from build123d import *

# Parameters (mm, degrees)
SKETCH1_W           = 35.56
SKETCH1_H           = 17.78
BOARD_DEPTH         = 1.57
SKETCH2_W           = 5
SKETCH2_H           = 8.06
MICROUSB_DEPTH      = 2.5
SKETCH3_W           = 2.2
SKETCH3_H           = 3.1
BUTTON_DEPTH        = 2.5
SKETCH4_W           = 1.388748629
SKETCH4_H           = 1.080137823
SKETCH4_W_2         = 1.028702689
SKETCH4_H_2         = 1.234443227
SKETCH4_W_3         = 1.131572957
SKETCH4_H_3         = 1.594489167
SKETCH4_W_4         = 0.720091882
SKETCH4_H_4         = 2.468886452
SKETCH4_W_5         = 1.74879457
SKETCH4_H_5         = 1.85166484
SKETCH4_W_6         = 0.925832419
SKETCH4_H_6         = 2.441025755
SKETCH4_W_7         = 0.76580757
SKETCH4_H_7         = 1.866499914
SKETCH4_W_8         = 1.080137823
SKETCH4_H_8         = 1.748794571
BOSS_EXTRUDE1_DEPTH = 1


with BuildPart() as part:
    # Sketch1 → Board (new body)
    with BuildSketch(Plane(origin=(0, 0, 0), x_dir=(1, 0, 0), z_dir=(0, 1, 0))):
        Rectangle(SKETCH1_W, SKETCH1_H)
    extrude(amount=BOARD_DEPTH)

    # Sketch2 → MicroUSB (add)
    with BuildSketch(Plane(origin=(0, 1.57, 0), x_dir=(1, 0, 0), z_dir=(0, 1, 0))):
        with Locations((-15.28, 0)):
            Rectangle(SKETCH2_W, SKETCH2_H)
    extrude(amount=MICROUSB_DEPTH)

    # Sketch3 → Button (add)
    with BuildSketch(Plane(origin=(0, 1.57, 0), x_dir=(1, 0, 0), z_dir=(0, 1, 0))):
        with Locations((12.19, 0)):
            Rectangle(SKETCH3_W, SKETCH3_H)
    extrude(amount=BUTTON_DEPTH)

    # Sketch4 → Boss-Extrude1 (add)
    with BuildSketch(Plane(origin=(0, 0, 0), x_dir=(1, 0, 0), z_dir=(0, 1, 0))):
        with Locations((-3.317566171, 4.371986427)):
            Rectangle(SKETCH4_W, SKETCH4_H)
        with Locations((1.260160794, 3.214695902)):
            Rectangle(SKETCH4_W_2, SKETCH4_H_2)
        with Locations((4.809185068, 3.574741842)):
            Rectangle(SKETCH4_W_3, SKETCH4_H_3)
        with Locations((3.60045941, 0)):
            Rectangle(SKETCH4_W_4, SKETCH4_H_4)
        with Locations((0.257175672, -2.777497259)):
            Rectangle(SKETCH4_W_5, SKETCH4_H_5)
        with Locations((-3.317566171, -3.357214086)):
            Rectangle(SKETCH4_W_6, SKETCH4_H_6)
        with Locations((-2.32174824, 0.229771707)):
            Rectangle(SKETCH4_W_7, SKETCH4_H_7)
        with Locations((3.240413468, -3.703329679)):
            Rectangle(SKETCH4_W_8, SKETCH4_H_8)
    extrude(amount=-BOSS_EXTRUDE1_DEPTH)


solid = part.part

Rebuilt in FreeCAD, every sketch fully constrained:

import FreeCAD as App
import Part
import Sketcher

V = App.Vector
Q = App.Units.Quantity


def add_polygon(sketch, points):
    """Adds a closed chain of lines whose ends are joined by coincident constraints."""
    first, n = sketch.GeometryCount, len(points)
    for a, b in zip(points, points[1:] + points[:1]):
        sketch.addGeometry(Part.LineSegment(App.Vector(*a, 0), App.Vector(*b, 0)), False)
    for i in range(n):
        sketch.addConstraint(Sketcher.Constraint("Coincident", first + i, 2, first + (i + 1) % n, 1))

doc = App.newDocument("Part")
body = doc.addObject("PartDesign::Body", "Body")

sketch1 = body.newObject("Sketcher::SketchObject", "Sketch")
sketch1.AttachmentSupport = (doc.getObject("XZ_Plane"), [""])
sketch1.MapMode = "FlatFace"
add_polygon(sketch1, [(-17.78, -8.89), (-17.78, 8.89), (17.78, 8.89), (17.78, -8.89)])
sketch1.addConstraint(Sketcher.Constraint("Vertical", 0))
sketch1.addConstraint(Sketcher.Constraint("Horizontal", 1))
sketch1.addConstraint(Sketcher.Constraint("Vertical", 2))
sketch1.addConstraint(Sketcher.Constraint("Horizontal", 3))
sketch1.addConstraint(Sketcher.Constraint("Symmetric", 0, 2, 2, 2, -1, 1))
sketch1.addConstraint(Sketcher.Constraint("DistanceX", 1, 1, 1, 2, Q("35.56 mm")))
sketch1.addConstraint(Sketcher.Constraint("DistanceY", 0, 1, 0, 2, Q("17.78 mm")))
pad1 = body.newObject("PartDesign::Pad", "Pad")
pad1.Profile = sketch1
pad1.Length = 1.57
pad1.Reversed = True

sketch2 = body.newObject("Sketcher::SketchObject", "Sketch001")
sketch2.AttachmentSupport = (doc.getObject("XZ_Plane"), [""])
sketch2.MapMode = "FlatFace"
sketch2.AttachmentOffset = App.Placement(V(0, 0, -1.57), App.Rotation())
add_polygon(sketch2, [(-17.78, -4.03), (-17.78, 4.03), (-12.78, 4.03), (-12.78, -4.03)])
sketch2.addConstraint(Sketcher.Constraint("Vertical", 0))
sketch2.addConstraint(Sketcher.Constraint("Horizontal", 1))
sketch2.addConstraint(Sketcher.Constraint("Vertical", 2))
sketch2.addConstraint(Sketcher.Constraint("Horizontal", 3))
sketch2.addConstraint(Sketcher.Constraint("DistanceX", 1, 1, 1, 2, Q("5 mm")))
sketch2.addConstraint(Sketcher.Constraint("DistanceY", 0, 1, 0, 2, Q("8.06 mm")))
sketch2.addConstraint(Sketcher.Constraint("DistanceX", 0, 2, -1, 1, Q("17.78 mm")))
sketch2.addConstraint(Sketcher.Constraint("DistanceY", -1, 1, 0, 2, Q("4.03 mm")))
pad2 = body.newObject("PartDesign::Pad", "Pad001")
pad2.Profile = sketch2
pad2.Length = 2.5
pad2.Reversed = True

sketch3 = body.newObject("Sketcher::SketchObject", "Sketch002")
sketch3.AttachmentSupport = (doc.getObject("XZ_Plane"), [""])
sketch3.MapMode = "FlatFace"
sketch3.AttachmentOffset = App.Placement(V(0, 0, -1.57), App.Rotation())
add_polygon(sketch3, [(11.09, -1.55), (11.09, 1.55), (13.29, 1.55), (13.29, -1.55)])
sketch3.addConstraint(Sketcher.Constraint("Vertical", 0))
sketch3.addConstraint(Sketcher.Constraint("Horizontal", 1))
sketch3.addConstraint(Sketcher.Constraint("Vertical", 2))
sketch3.addConstraint(Sketcher.Constraint("Horizontal", 3))
sketch3.addConstraint(Sketcher.Constraint("DistanceX", 1, 1, 1, 2, Q("2.2 mm")))
sketch3.addConstraint(Sketcher.Constraint("DistanceY", 0, 1, 0, 2, Q("3.1 mm")))
sketch3.addConstraint(Sketcher.Constraint("DistanceX", -1, 1, 0, 2, Q("11.09 mm")))
sketch3.addConstraint(Sketcher.Constraint("DistanceY", -1, 1, 0, 2, Q("1.55 mm")))
pad3 = body.newObject("PartDesign::Pad", "Pad002")
pad3.Profile = sketch3
pad3.Length = 2.5
pad3.Reversed = True

sketch4 = body.newObject("Sketcher::SketchObject", "Sketch003")
sketch4.AttachmentSupport = (doc.getObject("XZ_Plane"), [""])
sketch4.MapMode = "FlatFace"
add_polygon(sketch4, [(-4.01194, -4.912055), (-4.01194, -3.831918), (-2.623192, -3.831918), (-2.623192, -4.912055)])
add_polygon(sketch4, [(0.745809, -3.831918), (0.745809, -2.597474), (1.774512, -2.597474), (1.774512, -3.831918)])
add_polygon(sketch4, [(4.243399, -4.371986), (4.243399, -2.777497), (5.374972, -2.777497), (5.374972, -4.371986)])
add_polygon(sketch4, [(3.240413, -1.234443), (3.240413, 1.234443), (3.960505, 1.234443), (3.960505, -1.234443)])
add_polygon(sketch4, [(-0.617222, 1.851665), (-0.617222, 3.70333), (1.131573, 3.70333), (1.131573, 1.851665)])
add_polygon(sketch4, [(-3.780482, 2.136701), (-3.780482, 4.577727), (-2.85465, 4.577727), (-2.85465, 2.136701)])
add_polygon(sketch4, [(-2.704652, -1.163022), (-2.704652, 0.703478), (-1.938844, 0.703478), (-1.938844, -1.163022)])
add_polygon(sketch4, [(2.700345, 2.828932), (2.700345, 4.577727), (3.780482, 4.577727), (3.780482, 2.828932)])
sketch4.addConstraint(Sketcher.Constraint("Vertical", 0))
sketch4.addConstraint(Sketcher.Constraint("Horizontal", 1))
sketch4.addConstraint(Sketcher.Constraint("Vertical", 2))
sketch4.addConstraint(Sketcher.Constraint("Horizontal", 3))
sketch4.addConstraint(Sketcher.Constraint("Vertical", 4))
sketch4.addConstraint(Sketcher.Constraint("Horizontal", 5))
sketch4.addConstraint(Sketcher.Constraint("Vertical", 6))
sketch4.addConstraint(Sketcher.Constraint("Horizontal", 7))
sketch4.addConstraint(Sketcher.Constraint("Vertical", 8))
sketch4.addConstraint(Sketcher.Constraint("Horizontal", 9))
sketch4.addConstraint(Sketcher.Constraint("Vertical", 10))
sketch4.addConstraint(Sketcher.Constraint("Horizontal", 11))
sketch4.addConstraint(Sketcher.Constraint("Vertical", 12))
sketch4.addConstraint(Sketcher.Constraint("Horizontal", 13))
sketch4.addConstraint(Sketcher.Constraint("Vertical", 14))
sketch4.addConstraint(Sketcher.Constraint("Horizontal", 15))
sketch4.addConstraint(Sketcher.Constraint("Vertical", 16))
sketch4.addConstraint(Sketcher.Constraint("Horizontal", 17))
sketch4.addConstraint(Sketcher.Constraint("Vertical", 18))
sketch4.addConstraint(Sketcher.Constraint("Horizontal", 19))
sketch4.addConstraint(Sketcher.Constraint("Vertical", 20))
sketch4.addConstraint(Sketcher.Constraint("Horizontal", 21))
sketch4.addConstraint(Sketcher.Constraint("Vertical", 22))
sketch4.addConstraint(Sketcher.Constraint("Horizontal", 23))
sketch4.addConstraint(Sketcher.Constraint("Vertical", 24))
sketch4.addConstraint(Sketcher.Constraint("Horizontal", 25))
sketch4.addConstraint(Sketcher.Constraint("Vertical", 26))
sketch4.addConstraint(Sketcher.Constraint("Horizontal", 27))
sketch4.addConstraint(Sketcher.Constraint("Vertical", 28))
sketch4.addConstraint(Sketcher.Constraint("Horizontal", 29))
sketch4.addConstraint(Sketcher.Constraint("Vertical", 30))
sketch4.addConstraint(Sketcher.Constraint("Horizontal", 31))
sketch4.addConstraint(Sketcher.Constraint("Symmetric", 20, 2, 29, 2, -2))
sketch4.addConstraint(Sketcher.Constraint("Horizontal", 1, 2, 6, 2))
sketch4.addConstraint(Sketcher.Constraint("Equal", 31, 0))
sketch4.addConstraint(Sketcher.Constraint("Equal", 19, 28))
sketch4.addConstraint(Sketcher.Constraint("DistanceY", 24, 1, 24, 2, Q("1.8665 mm")))
sketch4.addConstraint(Sketcher.Constraint("DistanceX", 1, 2, 4, 2, Q("3.369001 mm")))
sketch4.addConstraint(Sketcher.Constraint("DistanceX", 1, 1, 1, 2, Q("1.388749 mm")))
sketch4.addConstraint(Sketcher.Constraint("DistanceX", 13, 1, 13, 2, Q("0.720092 mm")))
sketch4.addConstraint(Sketcher.Constraint("DistanceY", 8, 1, 8, 2, Q("1.594489 mm")))
sketch4.addConstraint(Sketcher.Constraint("DistanceX", -1, 1, 8, 2, Q("4.243399 mm")))
sketch4.addConstraint(Sketcher.Constraint("DistanceY", -1, 1, 22, 2, Q("2.136701 mm")))
sketch4.addConstraint(Sketcher.Constraint("DistanceX", 5, 2, 12, 2, Q("1.465901 mm")))
sketch4.addConstraint(Sketcher.Constraint("DistanceX", 5, 1, 5, 2, Q("1.028703 mm")))
sketch4.addConstraint(Sketcher.Constraint("DistanceX", 9, 1, 9, 2, Q("1.131573 mm")))
sketch4.addConstraint(Sketcher.Constraint("DistanceX", 17, 1, 17, 2, Q("1.748795 mm")))
sketch4.addConstraint(Sketcher.Constraint("DistanceX", 21, 1, 21, 2, Q("0.925832 mm")))
sketch4.addConstraint(Sketcher.Constraint("DistanceX", 25, 1, 25, 2, Q("0.765808 mm")))
sketch4.addConstraint(Sketcher.Constraint("DistanceX", 29, 1, 29, 2, Q("1.080138 mm")))
sketch4.addConstraint(Sketcher.Constraint("DistanceY", 4, 1, 4, 2, Q("1.234443 mm")))
sketch4.addConstraint(Sketcher.Constraint("DistanceY", 12, 1, 12, 2, Q("2.468886 mm")))
sketch4.addConstraint(Sketcher.Constraint("DistanceY", 16, 1, 16, 2, Q("1.851665 mm")))
sketch4.addConstraint(Sketcher.Constraint("DistanceY", 20, 1, 20, 2, Q("2.441026 mm")))
sketch4.addConstraint(Sketcher.Constraint("DistanceX", 0, 2, -1, 1, Q("4.01194 mm")))
sketch4.addConstraint(Sketcher.Constraint("DistanceX", 16, 2, -1, 1, Q("0.617222 mm")))
sketch4.addConstraint(Sketcher.Constraint("DistanceY", -1, 1, 16, 2, Q("3.70333 mm")))
sketch4.addConstraint(Sketcher.Constraint("DistanceX", 21, 2, -1, 1, Q("2.85465 mm")))
sketch4.addConstraint(Sketcher.Constraint("DistanceY", -1, 1, 24, 2, Q("0.703478 mm")))
sketch4.addConstraint(Sketcher.Constraint("DistanceY", 6, 2, 8, 2, Q("1.05442 mm")))
sketch4.addConstraint(Sketcher.Constraint("DistanceY", 8, 2, 12, 2, Q("4.01194 mm")))
sketch4.addConstraint(Sketcher.Constraint("DistanceY", 12, 2, 18, 2, Q("0.617222 mm")))
sketch4.addConstraint(Sketcher.Constraint("DistanceX", 23, 2, 24, 2, Q("1.07583 mm")))
pad4 = body.newObject("PartDesign::Pad", "Pad003")
pad4.Profile = sketch4
pad4.Length = 1

doc.recompute()
